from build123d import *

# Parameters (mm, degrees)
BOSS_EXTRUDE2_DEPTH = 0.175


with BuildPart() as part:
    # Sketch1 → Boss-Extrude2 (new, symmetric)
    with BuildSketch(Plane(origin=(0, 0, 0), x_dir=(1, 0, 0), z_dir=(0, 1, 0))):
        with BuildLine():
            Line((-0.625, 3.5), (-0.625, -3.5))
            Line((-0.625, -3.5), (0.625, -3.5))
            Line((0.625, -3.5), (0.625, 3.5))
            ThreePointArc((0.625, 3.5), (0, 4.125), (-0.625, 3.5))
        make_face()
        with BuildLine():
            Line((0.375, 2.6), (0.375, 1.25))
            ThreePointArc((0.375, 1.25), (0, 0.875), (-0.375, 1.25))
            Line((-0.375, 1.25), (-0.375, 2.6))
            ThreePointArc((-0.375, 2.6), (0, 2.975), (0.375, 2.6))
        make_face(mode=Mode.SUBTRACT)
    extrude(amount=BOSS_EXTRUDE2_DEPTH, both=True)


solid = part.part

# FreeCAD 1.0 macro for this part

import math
import FreeCAD as App
import Part
import Sketcher
from FreeCAD import Vector
Q = App.Units.Quantity

doc = App.newDocument("Part")
body = doc.addObject("PartDesign::Body", "Body")

# Sketch on XZ plane
sketch1 = doc.addObject("Sketcher::SketchObject", "Sketch")
body.addObject(sketch1)
sketch1.AttachmentSupport = (doc.XZ_Plane, [""])
sketch1.MapMode = "FlatFace"
sketch1.addGeometry([
    Part.LineSegment(Vector(-0.62, -3.5, 0), Vector(-0.62, 3.5, 0)),  # 0
    Part.LineSegment(Vector(-0.62, 3.5, 0), Vector(0.62, 3.5, 0)),  # 1
    Part.LineSegment(Vector(0.62, 3.5, 0), Vector(0.62, -3.5, 0)),  # 2
    Part.ArcOfCircle(Part.Circle(Vector(0, -3.5, 0), Vector(0, 0, 1), 0.62), math.radians(180), math.radians(360)),  # 3
    Part.ArcOfCircle(Part.Circle(Vector(0, -2.6, 0), Vector(0, 0, 1), 0.38), math.radians(180), math.radians(360)),  # 4
    Part.LineSegment(Vector(0.38, -2.6, 0), Vector(0.38, -1.25, 0)),  # 5
    Part.ArcOfCircle(Part.Circle(Vector(0, -1.25, 0), Vector(0, 0, 1), 0.38), math.radians(0), math.radians(180)),  # 6
    Part.LineSegment(Vector(-0.38, -1.25, 0), Vector(-0.38, -2.6, 0)),  # 7
], False)
sketch1.addConstraint([
    Sketcher.Constraint("Coincident", 0, 2, 1, 1),
    Sketcher.Constraint("Coincident", 1, 2, 2, 1),
    Sketcher.Constraint("Tangent", 2, 2, 3, 2),
    Sketcher.Constraint("Tangent", 3, 1, 0, 1),
    Sketcher.Constraint("Tangent", 4, 2, 5, 1),
    Sketcher.Constraint("Tangent", 5, 2, 6, 1),
    Sketcher.Constraint("Tangent", 6, 2, 7, 1),
    Sketcher.Constraint("Tangent", 7, 2, 4, 1),
    Sketcher.Constraint("Vertical", 0),
    Sketcher.Constraint("Horizontal", 1),
    Sketcher.Constraint("Vertical", 2),
    Sketcher.Constraint("Vertical", 5),
    Sketcher.Constraint("Vertical", 7),
    Sketcher.Constraint("Symmetric", 0, 2, 2, 2, -1, 1),
    Sketcher.Constraint("PointOnObject", 4, 3, -2),
    Sketcher.Constraint("DistanceY", 0, 1, 0, 2, Q("7 mm")),
    Sketcher.Constraint("Radius", 3, Q("0.625 mm")),
    Sketcher.Constraint("Radius", 4, Q("0.375 mm")),
    Sketcher.Constraint("DistanceY", 5, 1, 5, 2, Q("1.35 mm")),
    Sketcher.Constraint("DistanceY", 4, 3, -1, 1, Q("2.6 mm")),
])
pad1 = doc.addObject("PartDesign::Pad", "Pad")
body.addObject(pad1)
pad1.Profile = sketch1
pad1.Length = 0.35
pad1.Midplane = True

doc.recompute()
